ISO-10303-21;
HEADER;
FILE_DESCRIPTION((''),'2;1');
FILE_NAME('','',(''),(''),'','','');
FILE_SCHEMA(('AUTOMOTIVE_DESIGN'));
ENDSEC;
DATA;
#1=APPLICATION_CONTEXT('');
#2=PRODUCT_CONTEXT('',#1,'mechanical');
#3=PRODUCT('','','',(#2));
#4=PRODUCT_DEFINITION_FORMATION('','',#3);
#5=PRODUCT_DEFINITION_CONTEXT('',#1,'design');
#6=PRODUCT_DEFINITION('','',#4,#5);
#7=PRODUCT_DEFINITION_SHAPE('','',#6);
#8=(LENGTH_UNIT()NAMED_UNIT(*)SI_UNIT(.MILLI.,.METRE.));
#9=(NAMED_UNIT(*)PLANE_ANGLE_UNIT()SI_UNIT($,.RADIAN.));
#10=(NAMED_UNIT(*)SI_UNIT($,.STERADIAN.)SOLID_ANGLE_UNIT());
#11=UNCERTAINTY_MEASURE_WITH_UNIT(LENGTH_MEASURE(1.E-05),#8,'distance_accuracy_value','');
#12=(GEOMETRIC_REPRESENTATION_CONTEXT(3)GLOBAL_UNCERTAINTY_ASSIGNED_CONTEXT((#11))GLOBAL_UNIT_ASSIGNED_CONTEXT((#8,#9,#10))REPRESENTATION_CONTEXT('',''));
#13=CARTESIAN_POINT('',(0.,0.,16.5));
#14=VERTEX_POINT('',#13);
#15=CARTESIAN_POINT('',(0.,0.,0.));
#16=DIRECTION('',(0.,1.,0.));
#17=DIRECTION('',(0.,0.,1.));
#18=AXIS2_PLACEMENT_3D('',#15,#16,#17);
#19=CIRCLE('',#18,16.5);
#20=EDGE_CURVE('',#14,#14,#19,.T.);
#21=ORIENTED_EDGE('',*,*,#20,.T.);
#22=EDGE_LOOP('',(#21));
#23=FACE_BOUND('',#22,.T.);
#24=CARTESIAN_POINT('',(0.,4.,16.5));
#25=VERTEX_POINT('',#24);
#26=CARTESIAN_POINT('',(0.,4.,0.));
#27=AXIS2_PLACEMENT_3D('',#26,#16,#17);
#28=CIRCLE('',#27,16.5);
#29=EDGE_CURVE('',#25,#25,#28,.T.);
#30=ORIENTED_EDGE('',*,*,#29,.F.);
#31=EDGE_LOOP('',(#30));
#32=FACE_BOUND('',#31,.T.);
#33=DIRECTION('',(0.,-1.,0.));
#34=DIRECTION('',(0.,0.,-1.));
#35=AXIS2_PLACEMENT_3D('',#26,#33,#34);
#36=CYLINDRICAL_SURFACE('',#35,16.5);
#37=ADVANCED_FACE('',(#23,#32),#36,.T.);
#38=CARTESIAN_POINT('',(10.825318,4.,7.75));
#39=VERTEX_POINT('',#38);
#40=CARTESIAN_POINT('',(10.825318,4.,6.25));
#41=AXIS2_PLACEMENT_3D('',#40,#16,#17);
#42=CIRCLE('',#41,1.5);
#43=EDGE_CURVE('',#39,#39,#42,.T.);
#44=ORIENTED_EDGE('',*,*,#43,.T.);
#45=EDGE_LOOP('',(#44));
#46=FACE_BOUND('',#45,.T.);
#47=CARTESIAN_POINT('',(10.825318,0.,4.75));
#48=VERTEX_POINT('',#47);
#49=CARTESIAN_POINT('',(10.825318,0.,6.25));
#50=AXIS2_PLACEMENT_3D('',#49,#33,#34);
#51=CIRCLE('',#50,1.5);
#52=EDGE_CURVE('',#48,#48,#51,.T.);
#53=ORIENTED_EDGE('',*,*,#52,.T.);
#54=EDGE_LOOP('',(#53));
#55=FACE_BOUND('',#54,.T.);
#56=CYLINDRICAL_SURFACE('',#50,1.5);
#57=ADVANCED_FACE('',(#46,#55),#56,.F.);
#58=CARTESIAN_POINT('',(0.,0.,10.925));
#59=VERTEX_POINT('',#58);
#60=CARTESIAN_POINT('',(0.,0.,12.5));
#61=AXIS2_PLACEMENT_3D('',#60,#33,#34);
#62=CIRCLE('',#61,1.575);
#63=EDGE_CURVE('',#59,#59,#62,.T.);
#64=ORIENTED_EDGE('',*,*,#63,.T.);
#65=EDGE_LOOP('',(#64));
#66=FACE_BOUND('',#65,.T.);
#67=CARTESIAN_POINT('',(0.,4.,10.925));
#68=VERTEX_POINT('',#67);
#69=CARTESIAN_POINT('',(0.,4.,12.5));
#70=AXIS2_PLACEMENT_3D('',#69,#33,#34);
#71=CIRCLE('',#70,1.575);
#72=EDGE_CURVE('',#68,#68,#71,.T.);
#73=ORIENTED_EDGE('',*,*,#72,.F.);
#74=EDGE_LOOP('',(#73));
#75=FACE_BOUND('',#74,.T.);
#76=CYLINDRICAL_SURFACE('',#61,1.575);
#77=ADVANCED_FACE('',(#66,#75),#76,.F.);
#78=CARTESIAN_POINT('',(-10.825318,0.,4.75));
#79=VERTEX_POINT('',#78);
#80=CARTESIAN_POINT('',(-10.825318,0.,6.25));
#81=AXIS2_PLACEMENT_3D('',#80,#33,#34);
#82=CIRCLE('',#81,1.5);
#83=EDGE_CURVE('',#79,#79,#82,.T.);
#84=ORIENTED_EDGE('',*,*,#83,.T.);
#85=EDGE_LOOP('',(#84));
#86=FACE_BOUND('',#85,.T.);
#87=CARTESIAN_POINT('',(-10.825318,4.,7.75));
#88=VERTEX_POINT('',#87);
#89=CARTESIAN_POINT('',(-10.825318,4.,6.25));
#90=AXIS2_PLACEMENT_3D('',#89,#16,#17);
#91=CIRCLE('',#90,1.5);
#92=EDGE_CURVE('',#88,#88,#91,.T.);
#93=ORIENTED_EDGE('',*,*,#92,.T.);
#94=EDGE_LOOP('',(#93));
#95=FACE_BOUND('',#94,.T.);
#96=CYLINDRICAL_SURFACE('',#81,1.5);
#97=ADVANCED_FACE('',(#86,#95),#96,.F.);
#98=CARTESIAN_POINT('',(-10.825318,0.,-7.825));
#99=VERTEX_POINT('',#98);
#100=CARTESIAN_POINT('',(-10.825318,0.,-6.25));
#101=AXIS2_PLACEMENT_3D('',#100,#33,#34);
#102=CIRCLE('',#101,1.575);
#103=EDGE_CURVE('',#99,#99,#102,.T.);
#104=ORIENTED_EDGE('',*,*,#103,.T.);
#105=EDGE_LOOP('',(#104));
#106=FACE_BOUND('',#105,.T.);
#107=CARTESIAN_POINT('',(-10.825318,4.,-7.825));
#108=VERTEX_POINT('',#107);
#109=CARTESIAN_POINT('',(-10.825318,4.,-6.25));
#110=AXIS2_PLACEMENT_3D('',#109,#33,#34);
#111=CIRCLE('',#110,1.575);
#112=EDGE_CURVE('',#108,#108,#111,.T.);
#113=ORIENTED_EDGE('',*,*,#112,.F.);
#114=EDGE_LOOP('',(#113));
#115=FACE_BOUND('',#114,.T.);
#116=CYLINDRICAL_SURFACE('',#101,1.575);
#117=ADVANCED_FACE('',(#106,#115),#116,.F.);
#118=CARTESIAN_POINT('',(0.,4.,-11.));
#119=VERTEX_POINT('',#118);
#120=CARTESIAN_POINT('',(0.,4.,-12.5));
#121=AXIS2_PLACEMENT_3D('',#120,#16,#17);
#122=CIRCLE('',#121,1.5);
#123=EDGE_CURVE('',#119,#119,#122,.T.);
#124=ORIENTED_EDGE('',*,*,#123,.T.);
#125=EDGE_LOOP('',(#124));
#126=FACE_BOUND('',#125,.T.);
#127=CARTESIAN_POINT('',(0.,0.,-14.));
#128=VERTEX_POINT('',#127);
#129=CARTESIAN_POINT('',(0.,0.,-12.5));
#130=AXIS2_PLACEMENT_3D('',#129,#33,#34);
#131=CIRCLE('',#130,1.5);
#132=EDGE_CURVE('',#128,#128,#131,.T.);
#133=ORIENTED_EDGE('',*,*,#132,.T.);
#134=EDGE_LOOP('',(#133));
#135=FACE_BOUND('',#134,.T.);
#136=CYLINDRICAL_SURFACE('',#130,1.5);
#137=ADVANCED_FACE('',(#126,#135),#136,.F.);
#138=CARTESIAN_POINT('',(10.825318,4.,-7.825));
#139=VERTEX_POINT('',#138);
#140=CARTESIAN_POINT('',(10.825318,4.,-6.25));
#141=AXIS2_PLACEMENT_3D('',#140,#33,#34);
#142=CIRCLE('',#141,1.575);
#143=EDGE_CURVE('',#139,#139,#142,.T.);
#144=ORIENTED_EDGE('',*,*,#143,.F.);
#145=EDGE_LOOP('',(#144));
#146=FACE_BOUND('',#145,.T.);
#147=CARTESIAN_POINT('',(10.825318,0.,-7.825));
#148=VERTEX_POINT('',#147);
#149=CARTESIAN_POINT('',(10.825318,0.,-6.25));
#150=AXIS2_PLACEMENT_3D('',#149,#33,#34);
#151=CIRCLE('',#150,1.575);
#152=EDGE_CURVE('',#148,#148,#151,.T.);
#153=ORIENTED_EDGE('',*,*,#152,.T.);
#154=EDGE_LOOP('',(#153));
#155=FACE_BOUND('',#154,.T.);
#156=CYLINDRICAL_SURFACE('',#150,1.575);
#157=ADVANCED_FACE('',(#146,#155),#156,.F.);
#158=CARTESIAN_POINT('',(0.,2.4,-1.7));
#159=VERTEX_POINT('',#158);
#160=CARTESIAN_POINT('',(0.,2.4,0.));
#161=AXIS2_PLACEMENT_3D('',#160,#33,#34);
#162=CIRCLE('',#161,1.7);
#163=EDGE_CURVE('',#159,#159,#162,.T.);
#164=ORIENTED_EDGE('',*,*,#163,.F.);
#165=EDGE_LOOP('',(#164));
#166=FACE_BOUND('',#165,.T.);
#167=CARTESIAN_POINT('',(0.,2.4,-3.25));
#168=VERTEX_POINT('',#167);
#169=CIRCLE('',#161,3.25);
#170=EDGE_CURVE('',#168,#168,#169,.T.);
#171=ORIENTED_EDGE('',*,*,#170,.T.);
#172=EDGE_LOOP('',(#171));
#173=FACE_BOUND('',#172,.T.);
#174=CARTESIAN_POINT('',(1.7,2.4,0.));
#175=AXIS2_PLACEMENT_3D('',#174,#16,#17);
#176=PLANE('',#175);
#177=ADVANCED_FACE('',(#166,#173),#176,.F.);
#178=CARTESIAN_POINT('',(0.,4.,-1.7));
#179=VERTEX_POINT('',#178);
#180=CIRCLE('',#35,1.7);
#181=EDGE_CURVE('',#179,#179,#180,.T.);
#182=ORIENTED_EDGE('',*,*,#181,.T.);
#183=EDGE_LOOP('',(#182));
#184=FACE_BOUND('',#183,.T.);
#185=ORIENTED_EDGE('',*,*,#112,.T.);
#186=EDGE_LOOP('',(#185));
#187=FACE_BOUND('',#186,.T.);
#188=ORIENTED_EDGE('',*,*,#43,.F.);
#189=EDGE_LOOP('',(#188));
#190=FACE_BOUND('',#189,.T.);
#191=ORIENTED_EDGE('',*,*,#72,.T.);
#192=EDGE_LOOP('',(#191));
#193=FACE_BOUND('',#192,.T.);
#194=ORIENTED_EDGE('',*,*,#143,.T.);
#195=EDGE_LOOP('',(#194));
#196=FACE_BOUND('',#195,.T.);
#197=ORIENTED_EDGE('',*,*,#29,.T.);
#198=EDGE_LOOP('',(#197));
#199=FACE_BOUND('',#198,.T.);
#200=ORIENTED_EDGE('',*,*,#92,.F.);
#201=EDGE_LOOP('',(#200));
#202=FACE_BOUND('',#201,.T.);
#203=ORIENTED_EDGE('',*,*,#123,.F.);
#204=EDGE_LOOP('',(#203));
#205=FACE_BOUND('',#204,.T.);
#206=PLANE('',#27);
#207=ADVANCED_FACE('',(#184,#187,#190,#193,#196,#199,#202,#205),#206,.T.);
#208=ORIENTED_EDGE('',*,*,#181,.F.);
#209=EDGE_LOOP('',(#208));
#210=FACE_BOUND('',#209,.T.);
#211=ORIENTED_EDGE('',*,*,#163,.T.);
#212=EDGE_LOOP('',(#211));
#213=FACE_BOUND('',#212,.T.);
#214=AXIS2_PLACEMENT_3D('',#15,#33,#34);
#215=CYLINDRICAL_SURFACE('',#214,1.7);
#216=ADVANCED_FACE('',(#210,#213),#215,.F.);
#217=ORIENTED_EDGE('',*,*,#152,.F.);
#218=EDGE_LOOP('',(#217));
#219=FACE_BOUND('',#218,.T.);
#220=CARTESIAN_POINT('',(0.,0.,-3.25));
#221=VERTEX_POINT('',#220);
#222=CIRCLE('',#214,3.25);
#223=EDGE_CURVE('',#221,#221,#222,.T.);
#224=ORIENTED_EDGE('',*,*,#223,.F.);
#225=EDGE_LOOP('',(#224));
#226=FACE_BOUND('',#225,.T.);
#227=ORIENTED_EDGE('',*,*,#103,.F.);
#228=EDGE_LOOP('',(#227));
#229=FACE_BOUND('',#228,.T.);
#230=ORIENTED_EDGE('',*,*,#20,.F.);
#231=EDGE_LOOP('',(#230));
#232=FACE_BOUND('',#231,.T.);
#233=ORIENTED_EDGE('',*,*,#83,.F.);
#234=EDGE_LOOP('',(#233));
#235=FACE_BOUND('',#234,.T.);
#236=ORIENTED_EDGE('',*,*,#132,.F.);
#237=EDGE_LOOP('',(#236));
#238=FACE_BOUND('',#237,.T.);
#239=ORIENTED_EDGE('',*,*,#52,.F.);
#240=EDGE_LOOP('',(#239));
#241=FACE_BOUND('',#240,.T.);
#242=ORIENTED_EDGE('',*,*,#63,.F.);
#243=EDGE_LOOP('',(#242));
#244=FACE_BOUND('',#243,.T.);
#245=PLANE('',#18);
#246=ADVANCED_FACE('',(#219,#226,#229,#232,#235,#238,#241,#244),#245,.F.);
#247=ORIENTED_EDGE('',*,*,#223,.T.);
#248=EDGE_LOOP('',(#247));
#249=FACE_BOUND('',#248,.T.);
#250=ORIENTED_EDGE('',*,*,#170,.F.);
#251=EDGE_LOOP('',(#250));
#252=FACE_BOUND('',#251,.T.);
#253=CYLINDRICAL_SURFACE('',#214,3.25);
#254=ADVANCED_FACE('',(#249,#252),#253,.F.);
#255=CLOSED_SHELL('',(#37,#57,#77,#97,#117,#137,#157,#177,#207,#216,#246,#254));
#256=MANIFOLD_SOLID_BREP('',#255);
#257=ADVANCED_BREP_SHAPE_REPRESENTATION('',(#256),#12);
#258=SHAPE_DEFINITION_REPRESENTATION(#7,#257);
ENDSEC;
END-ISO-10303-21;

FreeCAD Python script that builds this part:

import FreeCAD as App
import Part
import Sketcher
from FreeCAD import Vector

doc = App.newDocument("Part")
body = doc.addObject("PartDesign::Body", "Body")

sketch1 = body.newObject("Sketcher::SketchObject", "Sketch")
sketch1.AttachmentSupport = (doc.getObject("XZ_Plane"), [""])
sketch1.MapMode = "FlatFace"
sketch1.addGeometry(Part.Circle(Vector(0, 0, 0), Vector(0, 0, 1), 16.5), False)
sketch1.addConstraint([
    Sketcher.Constraint("Coincident", 0, 3, -1, 1),
    Sketcher.Constraint("Diameter", 0, 33.0),
])
pad1 = body.newObject("PartDesign::Pad", "Pad")
pad1.Profile = sketch1
pad1.Length = 4
pad1.Reversed = True

sketch2 = body.newObject("Sketcher::SketchObject", "Sketch001")
sketch2.AttachmentSupport = (doc.getObject("XZ_Plane"), [""])
sketch2.MapMode = "FlatFace"
sketch2.addGeometry(Part.Circle(Vector(0, 0, 0), Vector(0, 0, 1), 1.7), False)
sketch2.addConstraint([
    Sketcher.Constraint("Coincident", 0, 3, -1, 1),
    Sketcher.Constraint("Diameter", 0, 3.4),
])
doc.recompute()
hole = body.newObject("PartDesign::Hole", "Hole")
hole.Profile = sketch2
hole.ThreadType = "None"
hole.Diameter = 3.4
hole.DepthType = "ThroughAll"
hole.HoleCutType = "Counterbore"
hole.HoleCutDiameter = 6.5
hole.HoleCutDepth = 2.4

sketch3 = body.newObject("Sketcher::SketchObject", "Sketch002")
sketch3.AttachmentSupport = (doc.getObject("XZ_Plane"), [""])
sketch3.MapMode = "FlatFace"
sketch3.addGeometry([
    Part.Circle(Vector(10.825318, 6.25, 0), Vector(0, 0, 1), 1.5),
    Part.Circle(Vector(0, -12.5, 0), Vector(0, 0, 1), 1.5),
    Part.Circle(Vector(-10.825318, 6.25, 0), Vector(0, 0, 1), 1.5),
], False)
sketch3.addConstraint([
    Sketcher.Constraint("Equal", 0, 1),
    Sketcher.Constraint("Equal", 1, 2),
    Sketcher.Constraint("Symmetric", 0, 3, 2, 3, -2),
    Sketcher.Constraint("PointOnObject", 1, 3, -2),
    Sketcher.Constraint("Diameter", 0, 3.0),
    Sketcher.Constraint("DistanceY", 1, 3, -1, 1, 12.5),
    Sketcher.Constraint("DistanceY", -1, 1, 0, 3, 6.25),
    Sketcher.Constraint("DistanceX", -1, 1, 0, 3, 10.825318),
])
doc.recompute()
hole2 = body.newObject("PartDesign::Hole", "Hole001")
hole2.Profile = sketch3
hole2.ThreadType = "None"
hole2.Diameter = 3
hole2.DepthType = "Dimension"
hole2.Depth = 6
hole2.DrillPoint = "Angled"
hole2.DrillPointAngle = 118

sketch4 = body.newObject("Sketcher::SketchObject", "Sketch003")
sketch4.AttachmentSupport = (doc.getObject("XZ_Plane"), [""])
sketch4.MapMode = "FlatFace"
sketch4.addGeometry([
    Part.Circle(Vector(-10.825318, -6.25, 0), Vector(0, 0, 1), 1.575),
    Part.Circle(Vector(0, 12.5, 0), Vector(0, 0, 1), 1.575),
    Part.Circle(Vector(10.825318, -6.25, 0), Vector(0, 0, 1), 1.575),
], False)
sketch4.addConstraint([
    Sketcher.Constraint("Equal", 0, 1),
    Sketcher.Constraint("Equal", 1, 2),
    Sketcher.Constraint("Symmetric", 0, 3, 2, 3, -2),
    Sketcher.Constraint("PointOnObject", 1, 3, -2),
    Sketcher.Constraint("Diameter", 0, 3.15),
    Sketcher.Constraint("DistanceY", -1, 1, 1, 3, 12.5),
    Sketcher.Constraint("DistanceY", 0, 3, -1, 1, 6.25),
    Sketcher.Constraint("DistanceX", 0, 3, -1, 1, 10.825318),
])
doc.recompute()
hole3 = body.newObject("PartDesign::Hole", "Hole002")
hole3.Profile = sketch4
hole3.ThreadType = "None"
hole3.Diameter = 3.15
hole3.DepthType = "ThroughAll"

doc.recompute()
